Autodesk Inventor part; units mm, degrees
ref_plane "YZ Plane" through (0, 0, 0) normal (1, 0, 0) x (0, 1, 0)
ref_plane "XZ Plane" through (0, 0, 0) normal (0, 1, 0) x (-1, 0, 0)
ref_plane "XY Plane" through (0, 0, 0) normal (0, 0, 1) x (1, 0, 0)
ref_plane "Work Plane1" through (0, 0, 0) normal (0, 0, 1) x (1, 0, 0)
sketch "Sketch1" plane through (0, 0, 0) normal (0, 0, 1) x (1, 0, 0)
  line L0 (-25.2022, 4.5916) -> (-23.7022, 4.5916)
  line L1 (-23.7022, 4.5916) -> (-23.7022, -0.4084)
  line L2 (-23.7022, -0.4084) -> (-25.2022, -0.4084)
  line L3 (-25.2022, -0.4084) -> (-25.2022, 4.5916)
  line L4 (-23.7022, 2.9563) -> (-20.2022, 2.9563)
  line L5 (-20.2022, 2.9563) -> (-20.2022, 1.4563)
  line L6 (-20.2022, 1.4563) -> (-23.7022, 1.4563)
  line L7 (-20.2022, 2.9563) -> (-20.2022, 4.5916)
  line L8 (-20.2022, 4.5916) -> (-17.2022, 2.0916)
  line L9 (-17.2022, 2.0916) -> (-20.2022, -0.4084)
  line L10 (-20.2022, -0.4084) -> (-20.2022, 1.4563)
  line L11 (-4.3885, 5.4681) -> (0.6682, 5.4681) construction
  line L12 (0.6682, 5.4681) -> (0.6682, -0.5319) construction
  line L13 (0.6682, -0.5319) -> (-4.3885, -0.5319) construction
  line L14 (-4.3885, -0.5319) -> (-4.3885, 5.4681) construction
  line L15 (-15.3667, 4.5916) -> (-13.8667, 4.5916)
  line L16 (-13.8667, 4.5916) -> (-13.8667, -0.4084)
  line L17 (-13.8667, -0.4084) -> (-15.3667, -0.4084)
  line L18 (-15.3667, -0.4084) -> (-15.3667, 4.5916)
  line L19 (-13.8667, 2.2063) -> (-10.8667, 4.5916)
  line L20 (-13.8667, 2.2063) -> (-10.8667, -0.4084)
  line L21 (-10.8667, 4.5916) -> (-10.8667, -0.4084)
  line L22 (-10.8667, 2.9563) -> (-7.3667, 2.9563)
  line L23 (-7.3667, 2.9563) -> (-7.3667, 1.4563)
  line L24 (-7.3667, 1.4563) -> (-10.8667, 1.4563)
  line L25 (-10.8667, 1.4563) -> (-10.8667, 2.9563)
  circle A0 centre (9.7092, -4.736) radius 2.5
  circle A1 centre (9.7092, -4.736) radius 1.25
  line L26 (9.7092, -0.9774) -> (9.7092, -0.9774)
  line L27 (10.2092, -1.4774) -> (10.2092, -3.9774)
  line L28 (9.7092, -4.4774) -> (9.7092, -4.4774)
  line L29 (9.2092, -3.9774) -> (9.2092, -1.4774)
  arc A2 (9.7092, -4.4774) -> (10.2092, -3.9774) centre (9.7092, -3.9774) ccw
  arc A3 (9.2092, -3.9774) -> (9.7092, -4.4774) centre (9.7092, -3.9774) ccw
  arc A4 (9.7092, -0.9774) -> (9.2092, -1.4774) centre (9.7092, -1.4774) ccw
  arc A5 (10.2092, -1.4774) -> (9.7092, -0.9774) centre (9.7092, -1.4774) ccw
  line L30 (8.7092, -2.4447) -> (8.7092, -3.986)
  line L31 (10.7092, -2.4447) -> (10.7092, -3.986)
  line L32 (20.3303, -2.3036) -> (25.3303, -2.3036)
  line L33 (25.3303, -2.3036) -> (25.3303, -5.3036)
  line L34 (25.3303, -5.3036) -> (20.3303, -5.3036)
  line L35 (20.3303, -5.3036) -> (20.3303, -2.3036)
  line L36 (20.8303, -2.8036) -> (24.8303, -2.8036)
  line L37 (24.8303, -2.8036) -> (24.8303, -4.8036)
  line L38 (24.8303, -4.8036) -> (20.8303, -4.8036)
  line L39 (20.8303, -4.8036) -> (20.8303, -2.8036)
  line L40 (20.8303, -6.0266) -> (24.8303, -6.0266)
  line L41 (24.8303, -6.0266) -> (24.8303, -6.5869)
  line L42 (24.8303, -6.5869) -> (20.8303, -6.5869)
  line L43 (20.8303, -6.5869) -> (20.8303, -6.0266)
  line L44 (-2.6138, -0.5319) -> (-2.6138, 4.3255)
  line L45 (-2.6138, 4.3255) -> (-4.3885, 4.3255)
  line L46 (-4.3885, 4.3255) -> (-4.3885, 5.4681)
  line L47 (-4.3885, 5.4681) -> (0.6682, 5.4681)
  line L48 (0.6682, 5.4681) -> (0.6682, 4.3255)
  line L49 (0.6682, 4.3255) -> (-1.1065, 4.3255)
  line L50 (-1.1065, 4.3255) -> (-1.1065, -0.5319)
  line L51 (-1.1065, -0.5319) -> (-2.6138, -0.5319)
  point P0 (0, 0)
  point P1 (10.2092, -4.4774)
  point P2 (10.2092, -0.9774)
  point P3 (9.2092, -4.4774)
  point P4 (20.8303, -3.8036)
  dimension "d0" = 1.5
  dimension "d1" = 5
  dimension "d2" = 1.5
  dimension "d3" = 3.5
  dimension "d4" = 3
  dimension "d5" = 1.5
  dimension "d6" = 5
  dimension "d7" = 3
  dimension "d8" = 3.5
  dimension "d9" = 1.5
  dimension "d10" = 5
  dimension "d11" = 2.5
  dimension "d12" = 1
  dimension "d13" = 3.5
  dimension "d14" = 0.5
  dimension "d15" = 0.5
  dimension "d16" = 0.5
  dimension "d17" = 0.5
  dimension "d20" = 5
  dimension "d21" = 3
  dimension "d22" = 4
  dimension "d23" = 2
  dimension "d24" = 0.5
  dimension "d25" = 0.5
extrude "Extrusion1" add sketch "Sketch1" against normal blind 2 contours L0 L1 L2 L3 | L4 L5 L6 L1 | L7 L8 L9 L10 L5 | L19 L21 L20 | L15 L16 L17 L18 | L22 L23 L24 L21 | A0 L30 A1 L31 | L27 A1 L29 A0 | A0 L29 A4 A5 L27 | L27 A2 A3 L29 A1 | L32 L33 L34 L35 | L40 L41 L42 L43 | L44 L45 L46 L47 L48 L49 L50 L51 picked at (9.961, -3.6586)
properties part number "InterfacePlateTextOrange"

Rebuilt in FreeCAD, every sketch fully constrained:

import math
import FreeCAD as App
import Part
import Sketcher
from FreeCAD import Vector
Q = App.Units.Quantity

doc = App.newDocument("Part")
body = doc.addObject("PartDesign::Body", "Body")
body.AllowCompound = True

# Sketch on XY plane
sketch1 = body.newObject("Sketcher::SketchObject", "Sketch")
sketch1.AttachmentSupport = (doc.getObject("XY_Plane"), [""])
sketch1.MapMode = "FlatFace"
sketch1.addGeometry([
    Part.LineSegment(Vector(-23.7, 4.6, 0), Vector(-25.2, 4.6, 0)),  # 0
    Part.LineSegment(Vector(-25.2, 4.6, 0), Vector(-25.2, -0.4, 0)),  # 1
    Part.LineSegment(Vector(-25.2, -0.4, 0), Vector(-23.7, -0.4, 0)),  # 2
    Part.LineSegment(Vector(-23.7, -0.4, 0), Vector(-23.7, 1.5, 0)),  # 3
    Part.LineSegment(Vector(-23.7, 1.5, 0), Vector(-20.2, 1.5, 0)),  # 4
    Part.LineSegment(Vector(-20.2, 1.5, 0), Vector(-20.2, -0.4, 0)),  # 5
    Part.LineSegment(Vector(-20.2, -0.4, 0), Vector(-17.2, 2.1, 0)),  # 6
    Part.LineSegment(Vector(-17.2, 2.1, 0), Vector(-20.2, 4.6, 0)),  # 7
    Part.LineSegment(Vector(-20.2, 4.6, 0), Vector(-20.2, 3, 0)),  # 8
    Part.LineSegment(Vector(-20.2, 3, 0), Vector(-23.7, 3, 0)),  # 9
    Part.LineSegment(Vector(-23.7, 3, 0), Vector(-23.7, 4.6, 0)),  # 10
    Part.LineSegment(Vector(-10.9, 4.6, 0), Vector(-13.9, 2.2, 0)),  # 11
    Part.LineSegment(Vector(-13.9, 2.2, 0), Vector(-10.9, -0.4, 0)),  # 12
    Part.LineSegment(Vector(-10.9, -0.4, 0), Vector(-10.9, 1.5, 0)),  # 13
    Part.LineSegment(Vector(-10.9, 1.5, 0), Vector(-7.4, 1.5, 0)),  # 14
    Part.LineSegment(Vector(-7.4, 1.5, 0), Vector(-7.4, 3, 0)),  # 15
    Part.LineSegment(Vector(-7.4, 3, 0), Vector(-10.9, 3, 0)),  # 16
    Part.LineSegment(Vector(-10.9, 3, 0), Vector(-10.9, 4.6, 0)),  # 17
    Part.LineSegment(Vector(-13.9, 4.6, 0), Vector(-15.4, 4.6, 0)),  # 18
    Part.LineSegment(Vector(-15.4, 4.6, 0), Vector(-15.4, -0.4, 0)),  # 19
    Part.LineSegment(Vector(-15.4, -0.4, 0), Vector(-13.9, -0.4, 0)),  # 20
    Part.LineSegment(Vector(-13.9, -0.4, 0), Vector(-13.9, 2.2, 0)),  # 21
    Part.LineSegment(Vector(-13.9, 2.2, 0), Vector(-13.9, 4.6, 0)),  # 22
    Part.ArcOfCircle(Part.Circle(Vector(9.7, -4.7, 0), Vector(0, 0, 1), 2.5), math.radians(114), math.radians(426)),  # 23
    Part.LineSegment(Vector(10.7, -2.4, 0), Vector(10.7, -4, 0)),  # 24
    Part.ArcOfCircle(Part.Circle(Vector(9.7, -4.7, 0), Vector(0, 0, 1), 1.2), math.radians(143), math.radians(397)),  # 25
    Part.LineSegment(Vector(8.7, -4, 0), Vector(8.7, -2.4, 0)),  # 26
    Part.ArcOfCircle(Part.Circle(Vector(9.7, -1.5, 0), Vector(0, 0, 1), 0.5), math.radians(0), math.radians(180)),  # 27
    Part.LineSegment(Vector(9.2, -1.5, 0), Vector(9.2, -4, 0)),  # 28
    Part.ArcOfCircle(Part.Circle(Vector(9.7, -4, 0), Vector(0, 0, 1), 0.5), math.radians(180), math.radians(360)),  # 29
    Part.LineSegment(Vector(10.2, -4, 0), Vector(10.2, -1.5, 0)),  # 30
    Part.LineSegment(Vector(25.3, -2.3, 0), Vector(20.3, -2.3, 0)),  # 31
    Part.LineSegment(Vector(20.3, -2.3, 0), Vector(20.3, -5.3, 0)),  # 32
    Part.LineSegment(Vector(20.3, -5.3, 0), Vector(25.3, -5.3, 0)),  # 33
    Part.LineSegment(Vector(25.3, -5.3, 0), Vector(25.3, -2.3, 0)),  # 34
    Part.LineSegment(Vector(20.8, -4.8, 0), Vector(20.8, -2.8, 0)),  # 35
    Part.LineSegment(Vector(20.8, -2.8, 0), Vector(24.8, -2.8, 0)),  # 36
    Part.LineSegment(Vector(24.8, -2.8, 0), Vector(24.8, -4.8, 0)),  # 37
    Part.LineSegment(Vector(24.8, -4.8, 0), Vector(20.8, -4.8, 0)),  # 38
    Part.LineSegment(Vector(24.8, -6, 0), Vector(20.8, -6, 0)),  # 39
    Part.LineSegment(Vector(20.8, -6, 0), Vector(20.8, -6.6, 0)),  # 40
    Part.LineSegment(Vector(20.8, -6.6, 0), Vector(24.8, -6.6, 0)),  # 41
    Part.LineSegment(Vector(24.8, -6.6, 0), Vector(24.8, -6, 0)),  # 42
    Part.LineSegment(Vector(-2.6, 4.3, 0), Vector(-2.6, -0.5, 0)),  # 43
    Part.LineSegment(Vector(-2.6, -0.5, 0), Vector(-1.1, -0.5, 0)),  # 44
    Part.LineSegment(Vector(-1.1, -0.5, 0), Vector(-1.1, 4.3, 0)),  # 45
    Part.LineSegment(Vector(-1.1, 4.3, 0), Vector(0.7, 4.3, 0)),  # 46
    Part.LineSegment(Vector(0.7, 4.3, 0), Vector(0.7, 5.5, 0)),  # 47
    Part.LineSegment(Vector(0.7, 5.5, 0), Vector(-4.4, 5.5, 0)),  # 48
    Part.LineSegment(Vector(-4.4, 5.5, 0), Vector(-4.4, 4.3, 0)),  # 49
    Part.LineSegment(Vector(-4.4, 4.3, 0), Vector(-2.6, 4.3, 0)),  # 50
], False)
sketch1.addConstraint([
    Sketcher.Constraint("Coincident", 0, 2, 1, 1),
    Sketcher.Constraint("Coincident", 1, 2, 2, 1),
    Sketcher.Constraint("Coincident", 2, 2, 3, 1),
    Sketcher.Constraint("Coincident", 3, 2, 4, 1),
    Sketcher.Constraint("Coincident", 4, 2, 5, 1),
    Sketcher.Constraint("Coincident", 5, 2, 6, 1),
    Sketcher.Constraint("Coincident", 6, 2, 7, 1),
    Sketcher.Constraint("Coincident", 7, 2, 8, 1),
    Sketcher.Constraint("Coincident", 8, 2, 9, 1),
    Sketcher.Constraint("Coincident", 9, 2, 10, 1),
    Sketcher.Constraint("Coincident", 10, 2, 0, 1),
    Sketcher.Constraint("Coincident", 11, 2, 12, 1),
    Sketcher.Constraint("Coincident", 12, 2, 13, 1),
    Sketcher.Constraint("Coincident", 13, 2, 14, 1),
    Sketcher.Constraint("Coincident", 14, 2, 15, 1),
    Sketcher.Constraint("Coincident", 15, 2, 16, 1),
    Sketcher.Constraint("Coincident", 16, 2, 17, 1),
    Sketcher.Constraint("Coincident", 17, 2, 11, 1),
    Sketcher.Constraint("Coincident", 18, 2, 19, 1),
    Sketcher.Constraint("Coincident", 19, 2, 20, 1),
    Sketcher.Constraint("Coincident", 20, 2, 21, 1),
    Sketcher.Constraint("Coincident", 21, 2, 22, 1),
    Sketcher.Constraint("Coincident", 22, 2, 18, 1),
    Sketcher.Constraint("Coincident", 23, 2, 24, 1),
    Sketcher.Constraint("Coincident", 24, 2, 25, 2),
    Sketcher.Constraint("Coincident", 25, 1, 26, 1),
    Sketcher.Constraint("Coincident", 26, 2, 23, 1),
    Sketcher.Constraint("Tangent", 27, 2, 28, 1),
    Sketcher.Constraint("Tangent", 28, 2, 29, 1),
    Sketcher.Constraint("Tangent", 29, 2, 30, 1),
    Sketcher.Constraint("Tangent", 30, 2, 27, 1),
    Sketcher.Constraint("Coincident", 31, 2, 32, 1),
    Sketcher.Constraint("Coincident", 32, 2, 33, 1),
    Sketcher.Constraint("Coincident", 33, 2, 34, 1),
    Sketcher.Constraint("Coincident", 34, 2, 31, 1),
    Sketcher.Constraint("Coincident", 35, 2, 36, 1),
    Sketcher.Constraint("Coincident", 36, 2, 37, 1),
    Sketcher.Constraint("Coincident", 37, 2, 38, 1),
    Sketcher.Constraint("Coincident", 38, 2, 35, 1),
    Sketcher.Constraint("Coincident", 39, 2, 40, 1),
    Sketcher.Constraint("Coincident", 40, 2, 41, 1),
    Sketcher.Constraint("Coincident", 41, 2, 42, 1),
    Sketcher.Constraint("Coincident", 42, 2, 39, 1),
    Sketcher.Constraint("Coincident", 43, 2, 44, 1),
    Sketcher.Constraint("Coincident", 44, 2, 45, 1),
    Sketcher.Constraint("Coincident", 45, 2, 46, 1),
    Sketcher.Constraint("Coincident", 46, 2, 47, 1),
    Sketcher.Constraint("Coincident", 47, 2, 48, 1),
    Sketcher.Constraint("Coincident", 48, 2, 49, 1),
    Sketcher.Constraint("Coincident", 49, 2, 50, 1),
    Sketcher.Constraint("Coincident", 50, 2, 43, 1),
    Sketcher.Constraint("Horizontal", 0),
    Sketcher.Constraint("Vertical", 1),
    Sketcher.Constraint("Horizontal", 2),
    Sketcher.Constraint("Vertical", 3),
    Sketcher.Constraint("Horizontal", 4),
    Sketcher.Constraint("Vertical", 5),
    Sketcher.Constraint("Vertical", 8),
    Sketcher.Constraint("Horizontal", 9),
    Sketcher.Constraint("Vertical", 10),
    Sketcher.Constraint("Vertical", 13),
    Sketcher.Constraint("Horizontal", 14),
    Sketcher.Constraint("Vertical", 15),
    Sketcher.Constraint("Horizontal", 16),
    Sketcher.Constraint("Vertical", 17),
    Sketcher.Constraint("Horizontal", 18),
    Sketcher.Constraint("Vertical", 19),
    Sketcher.Constraint("Horizontal", 20),
    Sketcher.Constraint("Vertical", 21),
    Sketcher.Constraint("Vertical", 22),
    Sketcher.Constraint("Vertical", 24),
    Sketcher.Constraint("Vertical", 26),
    Sketcher.Constraint("Vertical", 28),
    Sketcher.Constraint("Vertical", 30),
    Sketcher.Constraint("Horizontal", 31),
    Sketcher.Constraint("Vertical", 32),
    Sketcher.Constraint("Horizontal", 33),
    Sketcher.Constraint("Vertical", 34),
    Sketcher.Constraint("Vertical", 35),
    Sketcher.Constraint("Horizontal", 36),
    Sketcher.Constraint("Vertical", 37),
    Sketcher.Constraint("Horizontal", 38),
    Sketcher.Constraint("Horizontal", 39),
    Sketcher.Constraint("Vertical", 40),
    Sketcher.Constraint("Horizontal", 41),
    Sketcher.Constraint("Vertical", 42),
    Sketcher.Constraint("Vertical", 43),
    Sketcher.Constraint("Horizontal", 44),
    Sketcher.Constraint("Vertical", 45),
    Sketcher.Constraint("Horizontal", 46),
    Sketcher.Constraint("Vertical", 47),
    Sketcher.Constraint("Horizontal", 48),
    Sketcher.Constraint("Vertical", 49),
    Sketcher.Constraint("Horizontal", 50),
    Sketcher.Constraint("Coincident", 25, 3, 23, 3),
    Sketcher.Constraint("Coincident", 21, 2, 11, 2),
    Sketcher.Constraint("Horizontal", 2, 2, 5, 2),
    Sketcher.Constraint("Horizontal", 0, 2, 7, 2),
    Sketcher.Constraint("Horizontal", 5, 2, 12, 2),
    Sketcher.Constraint("Horizontal", 4, 2, 13, 2),
    Sketcher.Constraint("Horizontal", 9, 2, 15, 2),
    Sketcher.Constraint("Horizontal", 10, 2, 17, 2),
    Sketcher.Constraint("Horizontal", 17, 2, 18, 2),
    Sketcher.Constraint("Horizontal", 12, 2, 19, 2),
    Sketcher.Constraint("Horizontal", 24, 2, 25, 1),
    Sketcher.Constraint("Horizontal", 46, 2, 49, 2),
    Sketcher.Constraint("Vertical", 25, 3, 27, 3),
    Sketcher.Constraint("Vertical", 5, 2, 7, 2),
    Sketcher.Constraint("Vertical", 3, 2, 9, 2),
    Sketcher.Constraint("Vertical", 13, 2, 16, 2),
    Sketcher.Constraint("Vertical", 38, 2, 39, 2),
    Sketcher.Constraint("Vertical", 37, 2, 41, 2),
    Sketcher.Constraint("Equal", 9, 14),
    Sketcher.Constraint("Equal", 2, 18),
    Sketcher.Constraint("Equal", 46, 50),
    Sketcher.Constraint("Equal", 33, 1),
    Sketcher.Constraint("Equal", 20, 15),
    Sketcher.Constraint("Equal", 6, 7),
    Sketcher.Constraint("Radius", 23, Q("2.5 mm")),
    Sketcher.Constraint("Radius", 27, Q("0.5 mm")),
    Sketcher.Constraint("DistanceX", 31, 2, 31, 1, Q("5 mm")),
    Sketcher.Constraint("DistanceX", 36, 1, 36, 2, Q("4 mm")),
    Sketcher.Constraint("DistanceY", 32, 2, 32, 1, Q("3 mm")),
    Sketcher.Constraint("DistanceY", 35, 1, 35, 2, Q("2 mm")),
    Sketcher.Constraint("Radius", 25, Q("1.25 mm")),
    Sketcher.Constraint("DistanceX", 0, 2, 0, 1, Q("1.5 mm")),
    Sketcher.Constraint("DistanceX", 4, 1, 4, 2, Q("3.5 mm")),
    Sketcher.Constraint("DistanceY", 28, 2, 28, 1, Q("2.5 mm")),
    Sketcher.Constraint("DistanceX", 4, 2, 6, 2, Q("3 mm")),
    Sketcher.Constraint("DistanceX", 11, 2, 12, 2, Q("3 mm")),
    Sketcher.Constraint("DistanceX", 27, 3, 23, 2, Q("1 mm")),
    Sketcher.Constraint("DistanceX", 31, 2, 35, 2, Q("0.5 mm")),
    Sketcher.Constraint("DistanceY", 35, 2, 31, 2, Q("0.5 mm")),
    Sketcher.Constraint("DistanceY", 44, 2, 47, 2, Q("6 mm")),
    Sketcher.Constraint("DistanceY", 4, 2, 11, 2, Q("0.75 mm")),
    Sketcher.Constraint("DistanceX", 44, 1, 44, 2, Q("1.5073 mm")),
    Sketcher.Constraint("DistanceX", 46, 1, 46, 2, Q("1.7747 mm")),
    Sketcher.Constraint("DistanceY", 3, 1, 3, 2, Q("1.8647 mm")),
    Sketcher.Constraint("DistanceY", 40, 2, 40, 1, Q("0.5603 mm")),
    Sketcher.Constraint("DistanceY", 43, 2, 43, 1, Q("4.8574 mm")),
    Sketcher.Constraint("DistanceY", 23, 3, -1, 1, Q("4.736 mm")),
    Sketcher.Constraint("DistanceY", 40, 2, -1, 1, Q("6.587 mm")),
    Sketcher.Constraint("DistanceY", 43, 2, -1, 1, Q("0.532 mm")),
    Sketcher.Constraint("DistanceY", 27, 3, 0, 2, Q("6.069 mm")),
    Sketcher.Constraint("DistanceX", 14, 2, 23, 2, Q("18.076 mm")),
    Sketcher.Constraint("DistanceY", 23, 2, 14, 2, Q("3.901 mm")),
    Sketcher.Constraint("DistanceX", 23, 2, 31, 2, Q("9.621 mm")),
    Sketcher.Constraint("DistanceY", 23, 2, 31, 2, Q("0.141 mm")),
    Sketcher.Constraint("DistanceX", 14, 2, 43, 2, Q("4.753 mm")),
    Sketcher.Constraint("DistanceX", -1, 1, 23, 3, Q("9.7092 mm")),
    Sketcher.Constraint("DistanceX", 0, 2, -1, 1, Q("25.2022 mm")),
])
pad1 = body.newObject("PartDesign::Pad", "Pad")
pad1.Profile = sketch1
pad1.Length = 2
pad1.Reversed = True

doc.recompute()
